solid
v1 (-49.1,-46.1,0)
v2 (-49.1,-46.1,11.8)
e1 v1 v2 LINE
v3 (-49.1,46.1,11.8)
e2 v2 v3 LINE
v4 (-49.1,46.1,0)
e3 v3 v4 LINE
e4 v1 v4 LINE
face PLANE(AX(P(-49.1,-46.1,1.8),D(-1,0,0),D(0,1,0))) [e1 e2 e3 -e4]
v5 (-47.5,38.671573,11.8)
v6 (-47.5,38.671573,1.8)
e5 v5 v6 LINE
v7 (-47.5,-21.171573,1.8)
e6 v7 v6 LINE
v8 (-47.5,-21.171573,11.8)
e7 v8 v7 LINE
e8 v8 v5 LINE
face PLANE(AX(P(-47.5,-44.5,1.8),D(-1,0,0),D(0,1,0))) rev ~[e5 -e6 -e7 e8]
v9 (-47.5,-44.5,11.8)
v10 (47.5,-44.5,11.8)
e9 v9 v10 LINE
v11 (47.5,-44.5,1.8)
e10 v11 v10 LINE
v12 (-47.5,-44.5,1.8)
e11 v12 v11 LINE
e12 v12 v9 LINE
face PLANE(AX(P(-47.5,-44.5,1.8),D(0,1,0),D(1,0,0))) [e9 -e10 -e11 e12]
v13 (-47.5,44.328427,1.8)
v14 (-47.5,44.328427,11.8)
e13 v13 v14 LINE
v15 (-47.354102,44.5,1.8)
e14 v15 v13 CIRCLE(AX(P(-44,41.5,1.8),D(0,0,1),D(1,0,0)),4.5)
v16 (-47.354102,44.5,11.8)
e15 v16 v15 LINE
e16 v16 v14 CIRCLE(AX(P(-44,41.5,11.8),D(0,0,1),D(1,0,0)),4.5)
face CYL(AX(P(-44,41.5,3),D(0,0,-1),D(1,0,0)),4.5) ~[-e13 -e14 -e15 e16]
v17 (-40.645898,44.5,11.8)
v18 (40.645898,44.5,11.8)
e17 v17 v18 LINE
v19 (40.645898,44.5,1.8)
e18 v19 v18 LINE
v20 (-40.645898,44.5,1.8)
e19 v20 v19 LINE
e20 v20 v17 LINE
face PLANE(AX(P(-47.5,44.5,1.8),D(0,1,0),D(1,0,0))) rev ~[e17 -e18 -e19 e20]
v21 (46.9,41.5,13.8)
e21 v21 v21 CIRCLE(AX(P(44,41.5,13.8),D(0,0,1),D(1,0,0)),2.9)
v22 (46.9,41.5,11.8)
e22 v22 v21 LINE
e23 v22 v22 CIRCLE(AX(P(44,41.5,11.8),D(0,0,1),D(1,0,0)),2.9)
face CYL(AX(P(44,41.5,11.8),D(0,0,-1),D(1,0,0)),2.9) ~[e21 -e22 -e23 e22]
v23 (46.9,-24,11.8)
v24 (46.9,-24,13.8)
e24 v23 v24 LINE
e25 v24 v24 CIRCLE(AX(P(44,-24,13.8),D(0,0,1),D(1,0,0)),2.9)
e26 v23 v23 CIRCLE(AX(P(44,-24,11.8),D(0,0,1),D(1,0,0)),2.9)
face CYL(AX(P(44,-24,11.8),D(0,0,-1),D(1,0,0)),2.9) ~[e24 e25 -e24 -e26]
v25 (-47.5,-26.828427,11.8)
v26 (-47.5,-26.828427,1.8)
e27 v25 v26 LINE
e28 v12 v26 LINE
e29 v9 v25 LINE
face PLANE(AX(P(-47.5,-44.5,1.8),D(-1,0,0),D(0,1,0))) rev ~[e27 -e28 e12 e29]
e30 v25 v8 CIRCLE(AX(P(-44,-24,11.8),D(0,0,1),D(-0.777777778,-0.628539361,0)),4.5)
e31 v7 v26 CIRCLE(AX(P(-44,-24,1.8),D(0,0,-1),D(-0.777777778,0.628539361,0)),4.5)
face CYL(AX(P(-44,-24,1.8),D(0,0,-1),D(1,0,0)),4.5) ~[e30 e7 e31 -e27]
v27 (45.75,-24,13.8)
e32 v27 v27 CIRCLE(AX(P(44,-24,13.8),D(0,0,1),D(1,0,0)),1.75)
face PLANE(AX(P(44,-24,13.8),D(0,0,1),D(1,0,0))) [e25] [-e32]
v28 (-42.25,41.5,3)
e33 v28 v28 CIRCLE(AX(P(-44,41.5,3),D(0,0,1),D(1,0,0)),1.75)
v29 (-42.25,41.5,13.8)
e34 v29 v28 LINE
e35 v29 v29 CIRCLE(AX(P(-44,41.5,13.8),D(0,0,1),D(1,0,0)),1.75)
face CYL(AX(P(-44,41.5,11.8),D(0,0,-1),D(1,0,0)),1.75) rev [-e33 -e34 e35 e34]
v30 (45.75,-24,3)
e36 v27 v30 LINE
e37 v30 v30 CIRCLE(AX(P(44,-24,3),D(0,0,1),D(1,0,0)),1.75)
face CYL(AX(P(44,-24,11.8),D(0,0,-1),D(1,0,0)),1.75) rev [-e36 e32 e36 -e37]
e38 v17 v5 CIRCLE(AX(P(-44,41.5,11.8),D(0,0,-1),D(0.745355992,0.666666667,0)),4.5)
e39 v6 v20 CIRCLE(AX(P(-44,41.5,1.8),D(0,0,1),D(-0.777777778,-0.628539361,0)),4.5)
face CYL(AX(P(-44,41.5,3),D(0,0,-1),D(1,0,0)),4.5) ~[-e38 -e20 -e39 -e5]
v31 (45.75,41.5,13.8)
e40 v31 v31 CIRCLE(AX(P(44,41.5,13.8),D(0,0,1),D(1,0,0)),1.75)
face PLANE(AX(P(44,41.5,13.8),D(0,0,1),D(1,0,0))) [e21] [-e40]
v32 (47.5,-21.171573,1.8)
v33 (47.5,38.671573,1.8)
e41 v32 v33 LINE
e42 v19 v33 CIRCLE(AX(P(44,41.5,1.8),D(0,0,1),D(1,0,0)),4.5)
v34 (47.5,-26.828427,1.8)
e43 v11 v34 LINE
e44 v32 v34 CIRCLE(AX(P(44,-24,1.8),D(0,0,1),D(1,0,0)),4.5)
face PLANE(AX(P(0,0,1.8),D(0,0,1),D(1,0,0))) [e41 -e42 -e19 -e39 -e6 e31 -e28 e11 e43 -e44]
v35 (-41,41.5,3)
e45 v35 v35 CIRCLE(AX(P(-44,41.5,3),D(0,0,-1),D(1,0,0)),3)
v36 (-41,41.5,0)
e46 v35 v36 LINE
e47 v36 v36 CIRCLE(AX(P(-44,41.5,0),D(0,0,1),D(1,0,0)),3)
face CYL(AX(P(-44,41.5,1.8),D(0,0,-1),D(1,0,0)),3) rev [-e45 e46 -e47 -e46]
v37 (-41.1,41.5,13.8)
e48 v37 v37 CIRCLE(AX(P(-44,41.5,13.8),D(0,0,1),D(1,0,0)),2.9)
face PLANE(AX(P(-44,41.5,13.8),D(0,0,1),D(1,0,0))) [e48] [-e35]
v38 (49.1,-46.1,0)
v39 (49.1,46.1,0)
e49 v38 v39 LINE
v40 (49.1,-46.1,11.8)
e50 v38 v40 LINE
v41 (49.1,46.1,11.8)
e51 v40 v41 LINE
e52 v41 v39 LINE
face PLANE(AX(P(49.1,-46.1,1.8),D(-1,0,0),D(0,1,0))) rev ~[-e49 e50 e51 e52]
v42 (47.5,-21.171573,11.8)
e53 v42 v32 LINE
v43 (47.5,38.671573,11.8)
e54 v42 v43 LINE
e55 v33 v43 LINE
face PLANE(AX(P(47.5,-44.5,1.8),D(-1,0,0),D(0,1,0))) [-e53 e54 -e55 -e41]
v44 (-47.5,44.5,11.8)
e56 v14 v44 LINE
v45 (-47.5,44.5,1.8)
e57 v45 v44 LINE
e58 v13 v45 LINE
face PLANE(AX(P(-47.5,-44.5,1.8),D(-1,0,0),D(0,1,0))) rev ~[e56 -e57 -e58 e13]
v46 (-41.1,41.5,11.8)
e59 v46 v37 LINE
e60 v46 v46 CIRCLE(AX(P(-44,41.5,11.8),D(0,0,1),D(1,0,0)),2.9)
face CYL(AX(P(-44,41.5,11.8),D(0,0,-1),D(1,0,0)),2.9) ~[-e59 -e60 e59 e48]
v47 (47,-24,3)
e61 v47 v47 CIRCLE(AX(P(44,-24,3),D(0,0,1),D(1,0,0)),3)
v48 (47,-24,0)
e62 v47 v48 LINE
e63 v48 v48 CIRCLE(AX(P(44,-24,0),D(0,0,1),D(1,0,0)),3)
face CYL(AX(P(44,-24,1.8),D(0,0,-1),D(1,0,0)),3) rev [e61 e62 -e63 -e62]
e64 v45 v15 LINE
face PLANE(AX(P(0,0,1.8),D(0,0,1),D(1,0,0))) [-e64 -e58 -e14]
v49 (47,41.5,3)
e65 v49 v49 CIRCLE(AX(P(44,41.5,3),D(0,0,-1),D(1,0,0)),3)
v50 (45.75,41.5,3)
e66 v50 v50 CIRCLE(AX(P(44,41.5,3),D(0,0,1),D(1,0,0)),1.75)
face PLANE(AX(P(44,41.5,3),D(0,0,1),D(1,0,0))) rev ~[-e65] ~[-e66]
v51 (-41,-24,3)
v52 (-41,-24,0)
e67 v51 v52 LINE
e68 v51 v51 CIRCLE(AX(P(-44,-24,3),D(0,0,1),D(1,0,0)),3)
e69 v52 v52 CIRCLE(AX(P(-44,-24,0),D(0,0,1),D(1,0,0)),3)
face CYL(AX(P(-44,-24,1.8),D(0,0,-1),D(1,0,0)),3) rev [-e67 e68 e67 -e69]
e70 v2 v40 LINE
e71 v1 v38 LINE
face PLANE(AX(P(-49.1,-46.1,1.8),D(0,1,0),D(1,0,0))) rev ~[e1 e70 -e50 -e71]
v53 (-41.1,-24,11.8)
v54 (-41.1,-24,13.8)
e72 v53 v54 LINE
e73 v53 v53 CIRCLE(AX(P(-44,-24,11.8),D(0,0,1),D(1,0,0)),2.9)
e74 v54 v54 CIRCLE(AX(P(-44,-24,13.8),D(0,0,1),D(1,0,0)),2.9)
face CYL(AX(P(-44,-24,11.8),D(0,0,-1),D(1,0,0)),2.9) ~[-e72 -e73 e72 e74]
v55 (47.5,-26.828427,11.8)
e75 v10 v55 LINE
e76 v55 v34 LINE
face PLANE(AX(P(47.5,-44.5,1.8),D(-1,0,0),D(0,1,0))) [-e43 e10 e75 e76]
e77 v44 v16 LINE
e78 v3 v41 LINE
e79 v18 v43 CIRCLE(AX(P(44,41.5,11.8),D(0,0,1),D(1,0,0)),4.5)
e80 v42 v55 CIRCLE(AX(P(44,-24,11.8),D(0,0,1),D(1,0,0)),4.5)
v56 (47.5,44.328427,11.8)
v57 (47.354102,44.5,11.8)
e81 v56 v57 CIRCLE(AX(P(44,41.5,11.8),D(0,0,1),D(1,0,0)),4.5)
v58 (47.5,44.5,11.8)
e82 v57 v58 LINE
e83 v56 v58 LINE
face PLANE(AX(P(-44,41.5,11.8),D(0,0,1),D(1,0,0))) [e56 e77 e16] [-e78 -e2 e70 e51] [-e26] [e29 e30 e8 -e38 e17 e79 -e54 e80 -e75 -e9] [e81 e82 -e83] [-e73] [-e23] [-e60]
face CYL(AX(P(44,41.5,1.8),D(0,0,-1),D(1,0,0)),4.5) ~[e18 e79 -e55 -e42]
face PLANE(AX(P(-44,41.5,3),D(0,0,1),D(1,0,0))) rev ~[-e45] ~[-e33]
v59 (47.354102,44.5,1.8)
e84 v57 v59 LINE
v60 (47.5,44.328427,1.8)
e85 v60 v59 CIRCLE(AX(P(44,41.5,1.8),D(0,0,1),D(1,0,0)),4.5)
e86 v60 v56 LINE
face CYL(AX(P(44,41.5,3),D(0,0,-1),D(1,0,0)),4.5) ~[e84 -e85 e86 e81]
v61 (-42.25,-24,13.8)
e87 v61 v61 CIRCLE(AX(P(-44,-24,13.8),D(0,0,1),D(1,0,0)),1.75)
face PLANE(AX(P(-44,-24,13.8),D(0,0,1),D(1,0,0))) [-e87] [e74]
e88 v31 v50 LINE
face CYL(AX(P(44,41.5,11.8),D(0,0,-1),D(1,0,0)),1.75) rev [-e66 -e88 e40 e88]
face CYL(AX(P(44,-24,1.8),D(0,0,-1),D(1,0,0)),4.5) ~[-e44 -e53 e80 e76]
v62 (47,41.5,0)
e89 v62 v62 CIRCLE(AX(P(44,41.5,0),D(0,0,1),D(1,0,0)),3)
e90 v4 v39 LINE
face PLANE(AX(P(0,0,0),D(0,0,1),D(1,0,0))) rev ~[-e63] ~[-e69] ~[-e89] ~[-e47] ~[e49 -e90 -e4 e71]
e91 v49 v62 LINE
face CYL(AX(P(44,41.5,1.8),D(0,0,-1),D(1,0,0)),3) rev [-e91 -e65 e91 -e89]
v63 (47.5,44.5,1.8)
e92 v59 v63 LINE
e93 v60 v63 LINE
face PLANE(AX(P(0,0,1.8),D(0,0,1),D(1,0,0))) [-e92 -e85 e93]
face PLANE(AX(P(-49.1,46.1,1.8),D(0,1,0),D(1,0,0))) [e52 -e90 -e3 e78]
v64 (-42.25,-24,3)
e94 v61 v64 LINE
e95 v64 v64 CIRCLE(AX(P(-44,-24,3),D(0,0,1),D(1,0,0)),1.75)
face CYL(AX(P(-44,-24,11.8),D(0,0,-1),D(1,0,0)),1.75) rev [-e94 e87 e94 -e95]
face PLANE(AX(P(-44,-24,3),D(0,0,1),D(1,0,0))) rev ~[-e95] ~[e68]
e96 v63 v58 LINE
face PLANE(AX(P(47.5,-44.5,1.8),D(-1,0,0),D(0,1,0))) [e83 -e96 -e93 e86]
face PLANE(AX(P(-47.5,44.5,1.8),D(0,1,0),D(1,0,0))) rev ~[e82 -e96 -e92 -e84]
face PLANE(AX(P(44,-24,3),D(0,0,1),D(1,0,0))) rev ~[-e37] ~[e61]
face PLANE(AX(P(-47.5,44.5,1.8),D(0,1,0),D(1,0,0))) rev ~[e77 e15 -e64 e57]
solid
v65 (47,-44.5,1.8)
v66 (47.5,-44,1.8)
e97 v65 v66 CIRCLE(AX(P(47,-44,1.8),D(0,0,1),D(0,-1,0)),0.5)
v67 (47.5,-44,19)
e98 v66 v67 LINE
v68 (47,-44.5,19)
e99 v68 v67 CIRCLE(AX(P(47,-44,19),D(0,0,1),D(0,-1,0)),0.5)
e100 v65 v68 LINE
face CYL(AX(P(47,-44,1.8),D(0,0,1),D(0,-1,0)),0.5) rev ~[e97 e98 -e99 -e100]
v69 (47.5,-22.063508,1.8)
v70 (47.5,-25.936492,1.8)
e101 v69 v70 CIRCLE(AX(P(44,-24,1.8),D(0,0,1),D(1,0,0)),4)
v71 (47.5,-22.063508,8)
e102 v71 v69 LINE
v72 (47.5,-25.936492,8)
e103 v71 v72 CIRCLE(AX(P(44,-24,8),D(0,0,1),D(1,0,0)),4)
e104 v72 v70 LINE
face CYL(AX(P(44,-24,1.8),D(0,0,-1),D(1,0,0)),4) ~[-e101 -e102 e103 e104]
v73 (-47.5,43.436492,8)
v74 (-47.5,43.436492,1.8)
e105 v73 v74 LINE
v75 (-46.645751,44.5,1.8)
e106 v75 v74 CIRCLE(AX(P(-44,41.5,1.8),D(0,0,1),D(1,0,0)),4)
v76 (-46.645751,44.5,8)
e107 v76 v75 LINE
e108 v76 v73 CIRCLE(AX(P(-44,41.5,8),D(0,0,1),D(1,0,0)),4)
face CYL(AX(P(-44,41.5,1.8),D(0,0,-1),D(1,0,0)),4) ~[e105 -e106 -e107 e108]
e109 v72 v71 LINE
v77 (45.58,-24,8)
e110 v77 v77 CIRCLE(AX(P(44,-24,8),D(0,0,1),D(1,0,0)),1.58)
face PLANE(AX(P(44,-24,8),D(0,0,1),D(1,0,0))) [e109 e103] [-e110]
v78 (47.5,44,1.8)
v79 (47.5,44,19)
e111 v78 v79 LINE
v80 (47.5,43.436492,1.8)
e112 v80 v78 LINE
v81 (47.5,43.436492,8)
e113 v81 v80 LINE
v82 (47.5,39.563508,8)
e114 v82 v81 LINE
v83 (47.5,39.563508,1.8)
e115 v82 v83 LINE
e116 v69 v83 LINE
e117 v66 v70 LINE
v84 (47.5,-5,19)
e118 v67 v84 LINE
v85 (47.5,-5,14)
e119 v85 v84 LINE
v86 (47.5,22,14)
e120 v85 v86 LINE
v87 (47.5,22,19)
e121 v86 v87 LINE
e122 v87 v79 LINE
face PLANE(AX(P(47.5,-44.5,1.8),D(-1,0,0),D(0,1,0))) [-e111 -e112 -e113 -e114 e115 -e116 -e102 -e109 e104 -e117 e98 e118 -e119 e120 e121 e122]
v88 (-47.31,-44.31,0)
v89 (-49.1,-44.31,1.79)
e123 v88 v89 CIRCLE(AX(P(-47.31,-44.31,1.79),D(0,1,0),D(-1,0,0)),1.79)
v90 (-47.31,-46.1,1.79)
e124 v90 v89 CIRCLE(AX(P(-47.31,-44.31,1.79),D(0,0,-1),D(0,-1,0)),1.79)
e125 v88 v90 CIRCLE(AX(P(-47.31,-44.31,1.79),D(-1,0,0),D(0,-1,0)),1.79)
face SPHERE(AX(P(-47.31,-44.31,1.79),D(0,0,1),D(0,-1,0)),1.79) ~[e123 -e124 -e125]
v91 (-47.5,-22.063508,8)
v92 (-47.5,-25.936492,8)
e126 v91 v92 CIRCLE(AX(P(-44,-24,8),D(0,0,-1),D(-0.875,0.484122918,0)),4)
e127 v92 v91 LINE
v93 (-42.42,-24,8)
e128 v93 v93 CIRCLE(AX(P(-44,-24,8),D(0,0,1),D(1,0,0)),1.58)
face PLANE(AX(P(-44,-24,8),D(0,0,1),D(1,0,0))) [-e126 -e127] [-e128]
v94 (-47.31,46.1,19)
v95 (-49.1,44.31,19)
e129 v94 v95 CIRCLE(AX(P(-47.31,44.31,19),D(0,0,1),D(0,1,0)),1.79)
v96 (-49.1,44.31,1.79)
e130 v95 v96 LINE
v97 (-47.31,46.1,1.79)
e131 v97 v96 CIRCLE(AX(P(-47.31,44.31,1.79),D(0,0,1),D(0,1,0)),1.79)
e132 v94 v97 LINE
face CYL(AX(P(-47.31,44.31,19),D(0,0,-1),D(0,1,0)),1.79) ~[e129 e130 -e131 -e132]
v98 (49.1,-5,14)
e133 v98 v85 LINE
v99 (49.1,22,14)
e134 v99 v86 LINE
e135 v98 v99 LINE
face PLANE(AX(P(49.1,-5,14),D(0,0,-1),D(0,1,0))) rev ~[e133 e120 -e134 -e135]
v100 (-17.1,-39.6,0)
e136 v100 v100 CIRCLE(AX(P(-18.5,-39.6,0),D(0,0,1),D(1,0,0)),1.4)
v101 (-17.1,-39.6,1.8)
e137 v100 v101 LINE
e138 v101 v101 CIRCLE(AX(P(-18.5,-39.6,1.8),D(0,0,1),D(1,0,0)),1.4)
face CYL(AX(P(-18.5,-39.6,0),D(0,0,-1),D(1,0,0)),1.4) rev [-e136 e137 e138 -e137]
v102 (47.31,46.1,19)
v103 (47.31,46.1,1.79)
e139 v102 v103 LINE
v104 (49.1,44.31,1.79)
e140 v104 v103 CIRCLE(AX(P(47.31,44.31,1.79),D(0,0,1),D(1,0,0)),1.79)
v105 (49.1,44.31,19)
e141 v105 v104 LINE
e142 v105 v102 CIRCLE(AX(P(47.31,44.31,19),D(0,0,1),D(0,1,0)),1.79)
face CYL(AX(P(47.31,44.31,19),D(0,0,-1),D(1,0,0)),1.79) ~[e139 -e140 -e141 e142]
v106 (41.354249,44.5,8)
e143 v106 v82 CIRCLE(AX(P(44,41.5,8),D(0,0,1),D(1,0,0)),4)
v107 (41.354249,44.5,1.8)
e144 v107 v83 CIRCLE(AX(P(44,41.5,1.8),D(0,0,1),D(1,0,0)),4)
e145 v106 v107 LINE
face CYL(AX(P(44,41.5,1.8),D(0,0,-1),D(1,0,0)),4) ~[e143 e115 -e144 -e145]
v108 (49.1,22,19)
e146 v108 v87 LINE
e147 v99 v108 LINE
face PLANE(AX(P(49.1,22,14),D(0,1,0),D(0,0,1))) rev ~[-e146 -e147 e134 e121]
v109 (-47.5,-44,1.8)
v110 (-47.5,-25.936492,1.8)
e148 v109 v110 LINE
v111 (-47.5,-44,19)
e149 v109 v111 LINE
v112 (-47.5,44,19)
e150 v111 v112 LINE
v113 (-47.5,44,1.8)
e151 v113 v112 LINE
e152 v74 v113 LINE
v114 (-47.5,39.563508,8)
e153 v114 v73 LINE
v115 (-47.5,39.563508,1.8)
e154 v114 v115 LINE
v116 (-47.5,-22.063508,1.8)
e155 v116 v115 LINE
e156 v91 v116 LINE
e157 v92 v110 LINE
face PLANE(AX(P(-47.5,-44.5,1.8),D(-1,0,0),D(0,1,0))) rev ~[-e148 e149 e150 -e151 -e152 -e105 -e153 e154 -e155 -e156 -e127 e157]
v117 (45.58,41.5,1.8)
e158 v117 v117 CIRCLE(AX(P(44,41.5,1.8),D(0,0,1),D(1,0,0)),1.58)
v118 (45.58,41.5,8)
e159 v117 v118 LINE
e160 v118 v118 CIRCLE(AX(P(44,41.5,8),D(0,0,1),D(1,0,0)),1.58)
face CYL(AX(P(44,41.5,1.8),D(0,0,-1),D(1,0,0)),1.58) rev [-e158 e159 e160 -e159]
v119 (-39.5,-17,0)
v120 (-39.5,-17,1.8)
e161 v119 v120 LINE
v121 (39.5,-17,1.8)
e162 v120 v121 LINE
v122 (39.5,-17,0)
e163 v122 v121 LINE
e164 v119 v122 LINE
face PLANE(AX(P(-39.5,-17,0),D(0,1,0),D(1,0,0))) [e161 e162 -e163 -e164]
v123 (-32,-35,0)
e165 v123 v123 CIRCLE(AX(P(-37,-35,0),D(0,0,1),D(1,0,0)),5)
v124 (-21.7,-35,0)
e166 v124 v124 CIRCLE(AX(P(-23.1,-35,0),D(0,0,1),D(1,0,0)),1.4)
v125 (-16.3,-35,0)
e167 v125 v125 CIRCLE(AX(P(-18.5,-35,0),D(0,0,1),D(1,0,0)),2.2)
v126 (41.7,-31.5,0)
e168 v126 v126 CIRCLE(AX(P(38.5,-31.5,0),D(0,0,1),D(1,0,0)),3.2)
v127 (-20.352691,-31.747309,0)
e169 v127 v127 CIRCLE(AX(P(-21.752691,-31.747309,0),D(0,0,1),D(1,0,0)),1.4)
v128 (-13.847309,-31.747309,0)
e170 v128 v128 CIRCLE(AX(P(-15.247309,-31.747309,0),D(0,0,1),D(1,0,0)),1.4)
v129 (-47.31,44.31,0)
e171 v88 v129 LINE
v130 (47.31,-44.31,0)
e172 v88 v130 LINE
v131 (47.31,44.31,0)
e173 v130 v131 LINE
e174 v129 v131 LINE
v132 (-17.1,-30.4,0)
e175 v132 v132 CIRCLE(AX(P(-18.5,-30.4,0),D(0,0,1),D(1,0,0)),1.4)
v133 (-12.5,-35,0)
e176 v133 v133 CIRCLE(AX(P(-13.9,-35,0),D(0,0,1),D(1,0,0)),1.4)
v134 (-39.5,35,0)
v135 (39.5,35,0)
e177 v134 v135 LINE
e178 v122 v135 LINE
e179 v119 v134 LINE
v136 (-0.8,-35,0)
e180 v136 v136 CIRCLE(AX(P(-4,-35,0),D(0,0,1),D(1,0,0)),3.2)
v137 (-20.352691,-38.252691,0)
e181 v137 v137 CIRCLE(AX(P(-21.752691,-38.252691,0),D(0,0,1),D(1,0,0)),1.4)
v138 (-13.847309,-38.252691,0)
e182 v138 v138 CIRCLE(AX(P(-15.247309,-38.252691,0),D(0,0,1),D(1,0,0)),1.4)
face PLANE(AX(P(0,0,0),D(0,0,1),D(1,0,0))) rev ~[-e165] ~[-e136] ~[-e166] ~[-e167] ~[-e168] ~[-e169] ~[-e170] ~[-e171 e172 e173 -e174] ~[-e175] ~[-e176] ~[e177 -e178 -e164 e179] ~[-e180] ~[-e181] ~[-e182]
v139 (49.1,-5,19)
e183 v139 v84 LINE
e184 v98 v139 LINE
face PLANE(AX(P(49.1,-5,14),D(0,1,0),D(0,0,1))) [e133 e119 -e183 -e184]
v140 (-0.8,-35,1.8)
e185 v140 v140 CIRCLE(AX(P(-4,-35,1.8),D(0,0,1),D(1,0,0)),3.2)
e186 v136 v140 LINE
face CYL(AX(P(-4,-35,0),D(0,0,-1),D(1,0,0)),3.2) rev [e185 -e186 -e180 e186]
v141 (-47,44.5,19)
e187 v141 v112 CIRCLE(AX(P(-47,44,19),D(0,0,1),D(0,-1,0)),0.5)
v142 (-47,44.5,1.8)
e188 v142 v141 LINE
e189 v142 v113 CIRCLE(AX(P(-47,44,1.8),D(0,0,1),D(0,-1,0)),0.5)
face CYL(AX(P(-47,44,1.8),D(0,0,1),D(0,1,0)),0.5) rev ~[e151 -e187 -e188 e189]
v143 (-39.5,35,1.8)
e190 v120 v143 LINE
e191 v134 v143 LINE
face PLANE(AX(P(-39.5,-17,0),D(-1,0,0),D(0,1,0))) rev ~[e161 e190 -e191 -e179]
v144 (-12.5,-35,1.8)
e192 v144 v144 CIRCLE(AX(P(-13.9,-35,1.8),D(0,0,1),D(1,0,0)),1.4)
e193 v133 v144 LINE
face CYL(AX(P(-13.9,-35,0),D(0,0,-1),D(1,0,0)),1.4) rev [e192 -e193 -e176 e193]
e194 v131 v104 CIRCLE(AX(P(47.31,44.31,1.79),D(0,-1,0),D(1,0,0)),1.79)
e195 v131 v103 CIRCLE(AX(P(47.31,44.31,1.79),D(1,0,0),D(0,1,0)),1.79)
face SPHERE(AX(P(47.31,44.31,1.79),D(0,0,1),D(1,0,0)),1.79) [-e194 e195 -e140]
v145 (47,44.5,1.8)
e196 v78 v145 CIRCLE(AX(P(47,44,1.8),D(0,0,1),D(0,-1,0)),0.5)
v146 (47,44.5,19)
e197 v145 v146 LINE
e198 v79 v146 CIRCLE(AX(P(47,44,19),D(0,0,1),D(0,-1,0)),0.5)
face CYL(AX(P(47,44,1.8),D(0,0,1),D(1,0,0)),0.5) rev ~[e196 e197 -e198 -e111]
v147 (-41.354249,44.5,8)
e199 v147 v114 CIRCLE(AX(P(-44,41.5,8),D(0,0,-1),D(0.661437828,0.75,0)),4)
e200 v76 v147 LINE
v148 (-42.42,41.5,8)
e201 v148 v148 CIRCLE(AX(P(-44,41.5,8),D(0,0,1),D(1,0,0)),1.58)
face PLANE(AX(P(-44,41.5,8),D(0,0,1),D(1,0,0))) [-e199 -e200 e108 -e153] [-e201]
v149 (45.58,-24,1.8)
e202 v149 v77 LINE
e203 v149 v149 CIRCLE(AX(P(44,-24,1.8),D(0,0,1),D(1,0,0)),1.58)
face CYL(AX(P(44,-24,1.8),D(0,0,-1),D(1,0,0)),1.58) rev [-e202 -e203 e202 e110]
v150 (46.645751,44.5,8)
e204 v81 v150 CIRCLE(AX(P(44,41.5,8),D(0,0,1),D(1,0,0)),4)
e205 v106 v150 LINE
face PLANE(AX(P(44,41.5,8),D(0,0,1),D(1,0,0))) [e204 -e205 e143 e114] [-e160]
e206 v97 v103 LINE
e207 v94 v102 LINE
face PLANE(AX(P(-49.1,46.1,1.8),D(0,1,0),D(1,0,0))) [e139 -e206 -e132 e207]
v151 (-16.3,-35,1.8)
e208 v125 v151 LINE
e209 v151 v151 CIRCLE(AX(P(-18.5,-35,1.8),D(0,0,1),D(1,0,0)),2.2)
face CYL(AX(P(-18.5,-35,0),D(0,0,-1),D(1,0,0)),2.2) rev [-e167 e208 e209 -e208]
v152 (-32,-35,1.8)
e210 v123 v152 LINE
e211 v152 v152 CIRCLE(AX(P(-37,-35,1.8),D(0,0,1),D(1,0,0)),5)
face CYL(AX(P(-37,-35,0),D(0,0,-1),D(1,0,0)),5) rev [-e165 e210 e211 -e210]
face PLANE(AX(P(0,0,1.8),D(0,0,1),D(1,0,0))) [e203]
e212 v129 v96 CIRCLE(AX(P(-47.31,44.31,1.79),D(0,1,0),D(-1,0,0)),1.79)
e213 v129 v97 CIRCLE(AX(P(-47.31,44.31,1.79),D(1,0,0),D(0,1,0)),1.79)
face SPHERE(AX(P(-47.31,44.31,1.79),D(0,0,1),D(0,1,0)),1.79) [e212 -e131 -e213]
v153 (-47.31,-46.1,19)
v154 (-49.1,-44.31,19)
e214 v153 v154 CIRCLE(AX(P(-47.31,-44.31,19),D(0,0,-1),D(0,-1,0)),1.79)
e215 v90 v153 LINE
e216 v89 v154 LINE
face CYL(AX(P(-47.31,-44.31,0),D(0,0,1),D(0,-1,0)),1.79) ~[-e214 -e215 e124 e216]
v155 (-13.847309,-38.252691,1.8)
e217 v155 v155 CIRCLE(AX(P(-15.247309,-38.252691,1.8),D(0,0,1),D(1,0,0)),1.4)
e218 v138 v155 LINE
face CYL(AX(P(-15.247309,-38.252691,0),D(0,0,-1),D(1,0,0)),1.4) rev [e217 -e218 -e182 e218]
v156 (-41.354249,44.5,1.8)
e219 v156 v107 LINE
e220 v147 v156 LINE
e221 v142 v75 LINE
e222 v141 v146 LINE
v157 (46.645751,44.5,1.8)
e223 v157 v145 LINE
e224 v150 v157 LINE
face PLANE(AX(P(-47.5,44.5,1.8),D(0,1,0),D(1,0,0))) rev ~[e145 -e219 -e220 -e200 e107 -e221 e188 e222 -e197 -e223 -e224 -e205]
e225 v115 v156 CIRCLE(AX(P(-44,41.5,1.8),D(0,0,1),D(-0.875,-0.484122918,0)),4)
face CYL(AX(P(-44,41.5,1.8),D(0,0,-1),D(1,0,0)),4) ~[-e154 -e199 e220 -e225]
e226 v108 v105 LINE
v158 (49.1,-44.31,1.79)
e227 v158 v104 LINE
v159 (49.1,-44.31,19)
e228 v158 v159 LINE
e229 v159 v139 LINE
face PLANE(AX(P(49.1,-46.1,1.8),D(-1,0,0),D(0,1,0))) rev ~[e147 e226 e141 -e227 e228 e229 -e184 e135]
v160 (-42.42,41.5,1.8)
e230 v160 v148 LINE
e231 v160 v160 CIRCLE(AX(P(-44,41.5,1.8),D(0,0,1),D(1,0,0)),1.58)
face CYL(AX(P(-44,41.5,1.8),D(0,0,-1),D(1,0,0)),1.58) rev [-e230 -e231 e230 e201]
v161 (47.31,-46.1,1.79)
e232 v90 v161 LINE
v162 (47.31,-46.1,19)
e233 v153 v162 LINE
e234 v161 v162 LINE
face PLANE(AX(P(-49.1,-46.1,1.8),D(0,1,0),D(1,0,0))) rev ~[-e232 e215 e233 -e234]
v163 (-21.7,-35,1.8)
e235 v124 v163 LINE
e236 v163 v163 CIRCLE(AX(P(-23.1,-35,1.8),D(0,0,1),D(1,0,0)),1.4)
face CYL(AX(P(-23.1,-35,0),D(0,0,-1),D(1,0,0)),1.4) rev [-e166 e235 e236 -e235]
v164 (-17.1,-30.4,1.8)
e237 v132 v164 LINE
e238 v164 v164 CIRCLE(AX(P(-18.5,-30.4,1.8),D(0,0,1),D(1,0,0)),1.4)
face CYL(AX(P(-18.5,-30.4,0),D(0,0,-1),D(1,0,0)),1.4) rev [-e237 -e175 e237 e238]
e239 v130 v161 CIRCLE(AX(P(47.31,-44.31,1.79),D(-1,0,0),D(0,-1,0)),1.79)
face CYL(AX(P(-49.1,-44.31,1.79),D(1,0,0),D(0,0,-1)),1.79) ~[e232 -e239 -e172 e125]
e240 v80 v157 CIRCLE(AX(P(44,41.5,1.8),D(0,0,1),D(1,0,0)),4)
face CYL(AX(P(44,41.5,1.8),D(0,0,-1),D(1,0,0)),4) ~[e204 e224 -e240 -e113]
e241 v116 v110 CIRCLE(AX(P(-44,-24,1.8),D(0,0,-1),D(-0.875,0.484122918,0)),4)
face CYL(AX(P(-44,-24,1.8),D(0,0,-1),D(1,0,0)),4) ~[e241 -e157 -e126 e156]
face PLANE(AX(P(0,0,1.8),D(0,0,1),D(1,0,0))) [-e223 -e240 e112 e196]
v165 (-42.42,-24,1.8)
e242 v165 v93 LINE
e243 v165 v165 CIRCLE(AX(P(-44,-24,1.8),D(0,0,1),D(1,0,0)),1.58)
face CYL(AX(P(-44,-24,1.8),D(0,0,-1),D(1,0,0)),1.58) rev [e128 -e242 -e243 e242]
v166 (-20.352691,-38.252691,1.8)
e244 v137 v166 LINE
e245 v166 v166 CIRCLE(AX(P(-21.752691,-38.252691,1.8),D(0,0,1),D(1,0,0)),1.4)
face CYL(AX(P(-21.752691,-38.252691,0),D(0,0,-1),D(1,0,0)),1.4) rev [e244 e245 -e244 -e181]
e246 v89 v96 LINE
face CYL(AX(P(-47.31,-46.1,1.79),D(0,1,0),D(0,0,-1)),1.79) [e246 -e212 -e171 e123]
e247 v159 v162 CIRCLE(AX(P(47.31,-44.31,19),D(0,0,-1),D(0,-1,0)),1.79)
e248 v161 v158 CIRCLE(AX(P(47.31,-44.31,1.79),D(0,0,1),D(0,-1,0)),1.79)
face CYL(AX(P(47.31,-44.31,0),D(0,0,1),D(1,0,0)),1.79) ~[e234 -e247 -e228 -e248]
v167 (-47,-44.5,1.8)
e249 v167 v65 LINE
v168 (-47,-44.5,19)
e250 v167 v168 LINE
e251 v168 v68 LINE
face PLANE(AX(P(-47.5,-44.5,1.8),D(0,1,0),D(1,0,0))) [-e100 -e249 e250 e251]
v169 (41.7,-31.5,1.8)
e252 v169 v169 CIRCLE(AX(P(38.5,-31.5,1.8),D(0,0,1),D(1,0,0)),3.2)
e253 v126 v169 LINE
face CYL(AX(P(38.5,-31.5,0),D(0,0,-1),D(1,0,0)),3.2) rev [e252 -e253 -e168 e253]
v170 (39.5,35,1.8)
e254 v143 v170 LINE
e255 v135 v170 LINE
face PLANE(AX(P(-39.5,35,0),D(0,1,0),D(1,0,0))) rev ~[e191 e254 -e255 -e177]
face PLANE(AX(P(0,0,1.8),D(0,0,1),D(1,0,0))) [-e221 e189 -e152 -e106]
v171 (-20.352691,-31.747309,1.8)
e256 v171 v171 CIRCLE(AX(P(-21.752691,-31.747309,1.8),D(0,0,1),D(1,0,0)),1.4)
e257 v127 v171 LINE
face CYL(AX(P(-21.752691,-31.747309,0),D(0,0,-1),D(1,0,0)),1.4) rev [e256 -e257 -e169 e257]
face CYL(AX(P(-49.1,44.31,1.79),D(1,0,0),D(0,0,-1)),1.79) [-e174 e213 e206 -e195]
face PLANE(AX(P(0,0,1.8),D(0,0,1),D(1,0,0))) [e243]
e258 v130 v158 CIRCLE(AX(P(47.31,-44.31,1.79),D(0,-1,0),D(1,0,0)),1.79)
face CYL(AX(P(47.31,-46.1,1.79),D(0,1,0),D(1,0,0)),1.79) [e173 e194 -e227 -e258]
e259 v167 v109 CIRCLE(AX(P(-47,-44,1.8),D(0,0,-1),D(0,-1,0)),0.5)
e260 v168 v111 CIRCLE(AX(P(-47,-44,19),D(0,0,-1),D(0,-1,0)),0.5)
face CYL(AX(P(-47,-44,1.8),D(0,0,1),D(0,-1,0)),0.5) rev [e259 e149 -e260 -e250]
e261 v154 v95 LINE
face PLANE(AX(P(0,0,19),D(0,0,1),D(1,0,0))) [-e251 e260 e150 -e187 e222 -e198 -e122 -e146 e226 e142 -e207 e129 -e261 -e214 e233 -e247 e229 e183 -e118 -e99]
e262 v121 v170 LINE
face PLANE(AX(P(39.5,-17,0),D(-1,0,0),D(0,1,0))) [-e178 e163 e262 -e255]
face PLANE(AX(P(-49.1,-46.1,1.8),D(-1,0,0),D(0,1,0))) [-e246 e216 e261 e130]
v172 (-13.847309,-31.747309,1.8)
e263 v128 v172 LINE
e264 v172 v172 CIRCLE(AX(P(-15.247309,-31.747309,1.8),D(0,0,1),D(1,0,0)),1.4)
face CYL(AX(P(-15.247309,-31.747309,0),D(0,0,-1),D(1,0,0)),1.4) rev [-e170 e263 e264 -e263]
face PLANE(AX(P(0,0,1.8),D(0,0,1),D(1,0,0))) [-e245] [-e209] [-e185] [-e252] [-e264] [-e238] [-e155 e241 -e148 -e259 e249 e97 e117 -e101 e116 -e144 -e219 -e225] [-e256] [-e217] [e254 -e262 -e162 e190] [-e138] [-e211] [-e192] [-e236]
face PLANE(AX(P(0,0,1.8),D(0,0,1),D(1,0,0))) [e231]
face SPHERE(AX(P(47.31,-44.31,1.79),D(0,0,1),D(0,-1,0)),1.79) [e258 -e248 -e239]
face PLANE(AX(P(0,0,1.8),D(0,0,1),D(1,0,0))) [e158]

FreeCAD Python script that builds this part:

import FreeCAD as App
import Part
import Sketcher

V = App.Vector


def edges_at(feature, points):
    """Names of the edges that pass closest to the given points."""
    edges = feature.Shape.Edges
    near = lambda p: min(range(len(edges)), key=lambda i: edges[i].distToShape(Part.Vertex(*p))[0])
    return sorted({f"Edge{near(p) + 1}" for p in points})

doc = App.newDocument("Part")
body = doc.addObject("PartDesign::Body", "Body")

# Sketch on XY plane
sketch1 = body.newObject("Sketcher::SketchObject", "Sketch")
sketch1.AttachmentSupport = (doc.getObject("XY_Plane"), [""])
sketch1.MapMode = "FlatFace"
sketch1.addGeometry([
    Part.LineSegment(V(-49.1, 46.1, 0), V(-49.1, -46.1, 0)),  # 0
    Part.LineSegment(V(-49.1, -46.1, 0), V(49.1, -46.1, 0)),  # 1
    Part.LineSegment(V(49.1, -46.1, 0), V(49.1, 46.1, 0)),  # 2
    Part.LineSegment(V(49.1, 46.1, 0), V(-49.1, 46.1, 0)),  # 3
    Part.Circle(V(-37, -35, 0), V(0, 0, 1), 5),  # 4
    Part.Circle(V(-21.8, -38.3, 0), V(0, 0, 1), 1.4),  # 5
    Part.Circle(V(-23.1, -35, 0), V(0, 0, 1), 1.4),  # 6
    Part.Circle(V(-21.8, -31.7, 0), V(0, 0, 1), 1.4),  # 7
    Part.Circle(V(-18.5, -39.6, 0), V(0, 0, 1), 1.4),  # 8
    Part.Circle(V(-15.2, -38.3, 0), V(0, 0, 1), 1.4),  # 9
    Part.Circle(V(-18.5, -35, 0), V(0, 0, 1), 2.2),  # 10
    Part.Circle(V(-13.9, -35, 0), V(0, 0, 1), 1.4),  # 11
    Part.Circle(V(-15.2, -31.7, 0), V(0, 0, 1), 1.4),  # 12
    Part.Circle(V(-4, -35, 0), V(0, 0, 1), 3.2),  # 13
    Part.Circle(V(-18.5, -30.4, 0), V(0, 0, 1), 1.4),  # 14
    Part.Circle(V(38.5, -31.5, 0), V(0, 0, 1), 3.2),  # 15
    Part.LineSegment(V(39.5, -17, 0), V(-39.5, -17, 0)),  # 16
    Part.LineSegment(V(-39.5, -17, 0), V(-39.5, 35, 0)),  # 17
    Part.LineSegment(V(-39.5, 35, 0), V(39.5, 35, 0)),  # 18
    Part.LineSegment(V(39.5, 35, 0), V(39.5, -17, 0)),  # 19
], False)
sketch1.addConstraint([
    Sketcher.Constraint("Coincident", 0, 2, 1, 1),
    Sketcher.Constraint("Coincident", 1, 2, 2, 1),
    Sketcher.Constraint("Coincident", 2, 2, 3, 1),
    Sketcher.Constraint("Coincident", 3, 2, 0, 1),
    Sketcher.Constraint("Coincident", 16, 2, 17, 1),
    Sketcher.Constraint("Coincident", 17, 2, 18, 1),
    Sketcher.Constraint("Coincident", 18, 2, 19, 1),
    Sketcher.Constraint("Coincident", 19, 2, 16, 1),
    Sketcher.Constraint("Vertical", 0),
    Sketcher.Constraint("Horizontal", 1),
    Sketcher.Constraint("Vertical", 2),
    Sketcher.Constraint("Horizontal", 3),
    Sketcher.Constraint("Horizontal", 16),
    Sketcher.Constraint("Vertical", 17),
    Sketcher.Constraint("Horizontal", 18),
    Sketcher.Constraint("Vertical", 19),
    Sketcher.Constraint("Equal", 5, 6),
    Sketcher.Constraint("Equal", 6, 7),
    Sketcher.Constraint("Equal", 7, 8),
    Sketcher.Constraint("Equal", 8, 9),
    Sketcher.Constraint("Equal", 9, 11),
    Sketcher.Constraint("Equal", 11, 12),
    Sketcher.Constraint("Equal", 12, 14),
    Sketcher.Constraint("Equal", 13, 15),
    Sketcher.Constraint("Symmetric", 0, 2, 2, 2, -1, 1),
    Sketcher.Constraint("Horizontal", 4, 3, 6, 3),
    Sketcher.Constraint("Horizontal", 5, 3, 9, 3),
    Sketcher.Constraint("Horizontal", 6, 3, 10, 3),
    Sketcher.Constraint("Horizontal", 10, 3, 11, 3),
    Sketcher.Constraint("Horizontal", 7, 3, 12, 3),
    Sketcher.Constraint("Horizontal", 11, 3, 13, 3),
    Sketcher.Constraint("Vertical", 5, 3, 7, 3),
    Sketcher.Constraint("Vertical", 8, 3, 10, 3),
    Sketcher.Constraint("Vertical", 9, 3, 12, 3),
    Sketcher.Constraint("Vertical", 10, 3, 14, 3),
    Sketcher.Constraint("Diameter", 4, 10.0),
    Sketcher.Constraint("Diameter", 5, 2.8),
    Sketcher.Constraint("Diameter", 10, 4.4),
    Sketcher.Constraint("Diameter", 13, 6.4),
    Sketcher.Constraint("DistanceX", 16, 2, 16, 1, 79.0),
    Sketcher.Constraint("DistanceY", 17, 1, 17, 2, 52.0),
    Sketcher.Constraint("DistanceX", 1, 1, 1, 2, 98.2),
    Sketcher.Constraint("DistanceY", 0, 2, 0, 1, 92.2),
    Sketcher.Constraint("DistanceX", 4, 3, -1, 1, 37.0),
    Sketcher.Constraint("DistanceY", 4, 3, -1, 1, 35.0),
    Sketcher.Constraint("DistanceX", 13, 3, -1, 1, 4.0),
    Sketcher.Constraint("DistanceY", 16, 2, -1, 1, 17.0),
    Sketcher.Constraint("DistanceX", 14, 3, 15, 3, 57.0),
    Sketcher.Constraint("DistanceX", 0, 2, 6, 3, 26.0),
    Sketcher.Constraint("DistanceX", 11, 3, 1, 2, 63.0),
    Sketcher.Constraint("DistanceX", 16, 2, 14, 3, 21.0),
    Sketcher.Constraint("DistanceX", 8, 3, -1, 1, 18.5),
    Sketcher.Constraint("DistanceY", 8, 3, -1, 1, 39.6),
    Sketcher.Constraint("DistanceY", 14, 3, -1, 1, 30.4),
    Sketcher.Constraint("DistanceY", 15, 3, -1, 1, 31.5),
    Sketcher.Constraint("DistanceX", 5, 3, -1, 1, 21.752691),
    Sketcher.Constraint("DistanceY", 5, 3, -1, 1, 38.252691),
    Sketcher.Constraint("DistanceY", 7, 3, -1, 1, 31.747309),
    Sketcher.Constraint("DistanceX", 9, 3, -1, 1, 15.247309),
])
pad1 = body.newObject("PartDesign::Pad", "Pad")
pad1.Profile = sketch1
pad1.Length = 1.8

# Sketch on XY plane
sketch2 = body.newObject("Sketcher::SketchObject", "Sketch001")
sketch2.AttachmentSupport = (doc.getObject("XY_Plane"), [""])
sketch2.MapMode = "FlatFace"
sketch2.AttachmentOffset = App.Placement(V(0, 0, 1.8), App.Rotation())
sketch2.addGeometry([
    Part.LineSegment(V(-49, 46, 0), V(-49, -46, 0)),  # 0
    Part.LineSegment(V(-49, -46, 0), V(49, -46, 0)),  # 1
    Part.LineSegment(V(49, -46, 0), V(49, 46, 0)),  # 2
    Part.LineSegment(V(49, 46, 0), V(-49, 46, 0)),  # 3
    Part.LineSegment(V(48, -44, 0), V(-48, -44, 0)),  # 4
    Part.LineSegment(V(-48, -44, 0), V(-48, 44, 0)),  # 5
    Part.LineSegment(V(-48, 44, 0), V(48, 44, 0)),  # 6
    Part.LineSegment(V(48, 44, 0), V(48, -44, 0)),  # 7
], False)
sketch2.addConstraint([
    Sketcher.Constraint("Coincident", 0, 2, 1, 1),
    Sketcher.Constraint("Coincident", 1, 2, 2, 1),
    Sketcher.Constraint("Coincident", 2, 2, 3, 1),
    Sketcher.Constraint("Coincident", 3, 2, 0, 1),
    Sketcher.Constraint("Coincident", 4, 2, 5, 1),
    Sketcher.Constraint("Coincident", 5, 2, 6, 1),
    Sketcher.Constraint("Coincident", 6, 2, 7, 1),
    Sketcher.Constraint("Coincident", 7, 2, 4, 1),
    Sketcher.Constraint("Vertical", 0),
    Sketcher.Constraint("Horizontal", 1),
    Sketcher.Constraint("Vertical", 2),
    Sketcher.Constraint("Horizontal", 3),
    Sketcher.Constraint("Horizontal", 4),
    Sketcher.Constraint("Vertical", 5),
    Sketcher.Constraint("Horizontal", 6),
    Sketcher.Constraint("Vertical", 7),
    Sketcher.Constraint("Symmetric", 0, 2, 2, 2, -1, 1),
    Sketcher.Constraint("Symmetric", 4, 2, 6, 2, -1, 1),
    Sketcher.Constraint("DistanceX", 4, 2, 4, 1, 95.0),
    Sketcher.Constraint("DistanceY", 5, 1, 5, 2, 89.0),
    Sketcher.Constraint("DistanceX", 1, 1, 1, 2, 98.2),
    Sketcher.Constraint("DistanceY", 0, 2, 0, 1, 92.2),
])
pad2 = body.newObject("PartDesign::Pad", "Pad001")
pad2.Profile = sketch2
pad2.Length = 17.2

# Sketch on XY plane
sketch3 = body.newObject("Sketcher::SketchObject", "Sketch002")
sketch3.AttachmentSupport = (doc.getObject("XY_Plane"), [""])
sketch3.MapMode = "FlatFace"
sketch3.AttachmentOffset = App.Placement(V(0, 0, 1.8), App.Rotation())
sketch3.addGeometry([
    Part.Circle(V(-44, 41.5, 0), V(0, 0, 1), 4),  # 0
    Part.Circle(V(-44, 41.5, 0), V(0, 0, 1), 1.6),  # 1
    Part.Circle(V(44, 41.5, 0), V(0, 0, 1), 4),  # 2
    Part.Circle(V(44, 41.5, 0), V(0, 0, 1), 1.6),  # 3
    Part.Circle(V(44, -24, 0), V(0, 0, 1), 4),  # 4
    Part.Circle(V(44, -24, 0), V(0, 0, 1), 1.6),  # 5
    Part.Circle(V(-44, -24, 0), V(0, 0, 1), 4),  # 6
    Part.Circle(V(-44, -24, 0), V(0, 0, 1), 1.6),  # 7
], False)
sketch3.addConstraint([
    Sketcher.Constraint("Coincident", 1, 3, 0, 3),
    Sketcher.Constraint("Coincident", 3, 3, 2, 3),
    Sketcher.Constraint("Coincident", 5, 3, 4, 3),
    Sketcher.Constraint("Coincident", 7, 3, 6, 3),
    Sketcher.Constraint("Equal", 0, 2),
    Sketcher.Constraint("Equal", 1, 3),
    Sketcher.Constraint("Equal", 2, 4),
    Sketcher.Constraint("Equal", 3, 5),
    Sketcher.Constraint("Equal", 4, 6),
    Sketcher.Constraint("Equal", 5, 7),
    Sketcher.Constraint("Symmetric", 0, 3, 2, 3, -2),
    Sketcher.Constraint("Symmetric", 4, 3, 6, 3, -2),
    Sketcher.Constraint("Vertical", 3, 3, 4, 3),
    Sketcher.Constraint("Diameter", 0, 8.0),
    Sketcher.Constraint("Diameter", 1, 3.16),
    Sketcher.Constraint("DistanceX", 0, 3, -1, 1, 44.0),
    Sketcher.Constraint("DistanceY", 4, 3, -1, 1, 24.0),
    Sketcher.Constraint("DistanceY", -1, 1, 0, 3, 41.5),
])
pad3 = body.newObject("PartDesign::Pad", "Pad002")
pad3.Profile = sketch3
pad3.Length = 6.2
doc.recompute()

fillet = body.newObject("PartDesign::Fillet", "Fillet")
fillet.Base = (pad3, edges_at(pad3, [
    (-49.1, 46.1, 9.5),
    (-49.1, 46.1, 9.5),
    (-49.1, -46.1, 9.5),
    (-49.1, -46.1, 9.5),
    (49.1, 46.1, 9.5),
    (49.1, 46.1, 9.5),
    (49.1, -46.1, 9.5),
    (49.1, -46.1, 9.5),
    (0, -46.1, 0),
    (49.1, 0, 0),
    (0, 46.1, 0),
    (-49.1, 0, 0),
]))
fillet.Radius = 1.79
doc.recompute()

fillet2 = body.newObject("PartDesign::Fillet", "Fillet001")
fillet2.Base = (fillet, edges_at(fillet, [
    (-47.5, 44.5, 10.4),
    (-47.5, -44.5, 10.4),
    (47.5, -44.5, 10.4),
    (47.5, 44.5, 10.4),
]))
fillet2.Radius = 0.5

# Sketch on YZ plane
sketch4 = body.newObject("Sketcher::SketchObject", "Sketch003")
sketch4.AttachmentSupport = (doc.getObject("YZ_Plane"), [""])
sketch4.MapMode = "FlatFace"
sketch4.AttachmentOffset = App.Placement(V(0, 0, 49.1), App.Rotation())
sketch4.addGeometry([
    Part.LineSegment(V(-5, 19, 0), V(-5, 14, 0)),
    Part.LineSegment(V(-5, 14, 0), V(22, 14, 0)),
    Part.LineSegment(V(22, 14, 0), V(22, 19, 0)),
    Part.LineSegment(V(22, 19, 0), V(-5, 19, 0)),
], False)
sketch4.addConstraint([
    Sketcher.Constraint("Coincident", 0, 2, 1, 1),
    Sketcher.Constraint("Coincident", 1, 2, 2, 1),
    Sketcher.Constraint("Coincident", 2, 2, 3, 1),
    Sketcher.Constraint("Coincident", 3, 2, 0, 1),
    Sketcher.Constraint("Vertical", 0),
    Sketcher.Constraint("Horizontal", 1),
    Sketcher.Constraint("Vertical", 2),
    Sketcher.Constraint("Horizontal", 3),
    Sketcher.Constraint("DistanceX", 1, 1, 1, 2, 27.0),
    Sketcher.Constraint("DistanceY", 0, 2, 0, 1, 5.0),
    Sketcher.Constraint("DistanceX", 0, 2, -1, 1, 5.0),
    Sketcher.Constraint("DistanceY", -1, 1, 0, 2, 14.0),
])
pocket1 = body.newObject("PartDesign::Pocket", "Pocket")
pocket1.Profile = sketch4
pocket1.Length = 1.6
body2 = doc.addObject("PartDesign::Body", "Body001")

# Sketch on XY plane
sketch5 = body2.newObject("Sketcher::SketchObject", "Sketch004")
sketch5.AttachmentSupport = (doc.getObject("XY_Plane001"), [""])
sketch5.MapMode = "FlatFace"
sketch5.addGeometry([
    Part.LineSegment(V(-49.1, 46.1, 0), V(-49.1, -46.1, 0)),  # 0
    Part.LineSegment(V(-49.1, -46.1, 0), V(49.1, -46.1, 0)),  # 1
    Part.LineSegment(V(49.1, -46.1, 0), V(49.1, 46.1, 0)),  # 2
    Part.LineSegment(V(49.1, 46.1, 0), V(-49.1, 46.1, 0)),  # 3
    Part.Circle(V(-44, -24, 0), V(0, 0, 1), 3),  # 4
    Part.Circle(V(44, -24, 0), V(0, 0, 1), 3),  # 5
    Part.Circle(V(-44, 41.5, 0), V(0, 0, 1), 3),  # 6
    Part.Circle(V(44, 41.5, 0), V(0, 0, 1), 3),  # 7
], False)
sketch5.addConstraint([
    Sketcher.Constraint("Coincident", 0, 2, 1, 1),
    Sketcher.Constraint("Coincident", 1, 2, 2, 1),
    Sketcher.Constraint("Coincident", 2, 2, 3, 1),
    Sketcher.Constraint("Coincident", 3, 2, 0, 1),
    Sketcher.Constraint("Vertical", 0),
    Sketcher.Constraint("Horizontal", 1),
    Sketcher.Constraint("Vertical", 2),
    Sketcher.Constraint("Horizontal", 3),
    Sketcher.Constraint("Equal", 4, 5),
    Sketcher.Constraint("Equal", 5, 6),
    Sketcher.Constraint("Equal", 6, 7),
    Sketcher.Constraint("Symmetric", 0, 2, 2, 2, -1, 1),
    Sketcher.Constraint("Symmetric", 4, 3, 5, 3, -2),
    Sketcher.Constraint("Symmetric", 6, 3, 7, 3, -2),
    Sketcher.Constraint("Vertical", 4, 3, 6, 3),
    Sketcher.Constraint("Diameter", 4, 6.0),
    Sketcher.Constraint("DistanceX", 1, 1, 1, 2, 98.2),
    Sketcher.Constraint("DistanceY", 0, 2, 0, 1, 92.2),
    Sketcher.Constraint("DistanceX", 4, 3, -1, 1, 44.0),
    Sketcher.Constraint("DistanceY", 4, 3, -1, 1, 24.0),
    Sketcher.Constraint("DistanceY", -1, 1, 6, 3, 41.5),
])
pad4 = body2.newObject("PartDesign::Pad", "Pad003")
pad4.Profile = sketch5
pad4.Length = 1.8

# Sketch on XY plane
sketch6 = body2.newObject("Sketcher::SketchObject", "Sketch005")
sketch6.AttachmentSupport = (doc.getObject("XY_Plane001"), [""])
sketch6.MapMode = "FlatFace"
sketch6.AttachmentOffset = App.Placement(V(0, 0, 1.8), App.Rotation())
sketch6.addGeometry([
    Part.LineSegment(V(-49, 46, 0), V(-49, -46, 0)),  # 0
    Part.LineSegment(V(-49, -46, 0), V(49, -46, 0)),  # 1
    Part.LineSegment(V(49, -46, 0), V(49, 46, 0)),  # 2
    Part.LineSegment(V(49, 46, 0), V(-49, 46, 0)),  # 3
    Part.LineSegment(V(48, -44, 0), V(-48, -44, 0)),  # 4
    Part.LineSegment(V(-48, -44, 0), V(-48, 44, 0)),  # 5
    Part.LineSegment(V(-48, 44, 0), V(48, 44, 0)),  # 6
    Part.LineSegment(V(48, 44, 0), V(48, -44, 0)),  # 7
], False)
sketch6.addConstraint([
    Sketcher.Constraint("Coincident", 0, 2, 1, 1),
    Sketcher.Constraint("Coincident", 1, 2, 2, 1),
    Sketcher.Constraint("Coincident", 2, 2, 3, 1),
    Sketcher.Constraint("Coincident", 3, 2, 0, 1),
    Sketcher.Constraint("Coincident", 4, 2, 5, 1),
    Sketcher.Constraint("Coincident", 5, 2, 6, 1),
    Sketcher.Constraint("Coincident", 6, 2, 7, 1),
    Sketcher.Constraint("Coincident", 7, 2, 4, 1),
    Sketcher.Constraint("Vertical", 0),
    Sketcher.Constraint("Horizontal", 1),
    Sketcher.Constraint("Vertical", 2),
    Sketcher.Constraint("Horizontal", 3),
    Sketcher.Constraint("Horizontal", 4),
    Sketcher.Constraint("Vertical", 5),
    Sketcher.Constraint("Horizontal", 6),
    Sketcher.Constraint("Vertical", 7),
    Sketcher.Constraint("Symmetric", 0, 2, 2, 2, -1, 1),
    Sketcher.Constraint("Symmetric", 4, 2, 6, 2, -1, 1),
    Sketcher.Constraint("DistanceX", 4, 2, 4, 1, 95.0),
    Sketcher.Constraint("DistanceY", 5, 1, 5, 2, 89.0),
    Sketcher.Constraint("DistanceX", 1, 1, 1, 2, 98.2),
    Sketcher.Constraint("DistanceY", 0, 2, 0, 1, 92.2),
])
pad5 = body2.newObject("PartDesign::Pad", "Pad004")
pad5.Profile = sketch6
pad5.Length = 10

# Sketch on XY plane
sketch7 = body2.newObject("Sketcher::SketchObject", "Sketch006")
sketch7.AttachmentSupport = (doc.getObject("XY_Plane001"), [""])
sketch7.MapMode = "FlatFace"
sketch7.AttachmentOffset = App.Placement(V(0, 0, 1.8), App.Rotation())
sketch7.addGeometry([
    Part.Circle(V(-44, 41.5, 0), V(0, 0, 1), 4.5),  # 0
    Part.Circle(V(-44, 41.5, 0), V(0, 0, 1), 3),  # 1
    Part.Circle(V(44, 41.5, 0), V(0, 0, 1), 4.5),  # 2
    Part.Circle(V(44, 41.5, 0), V(0, 0, 1), 3),  # 3
    Part.Circle(V(44, -24, 0), V(0, 0, 1), 4.5),  # 4
    Part.Circle(V(44, -24, 0), V(0, 0, 1), 3),  # 5
    Part.Circle(V(-44, -24, 0), V(0, 0, 1), 4.5),  # 6
    Part.Circle(V(-44, -24, 0), V(0, 0, 1), 3),  # 7
], False)
sketch7.addConstraint([
    Sketcher.Constraint("Coincident", 1, 3, 0, 3),
    Sketcher.Constraint("Coincident", 3, 3, 2, 3),
    Sketcher.Constraint("Coincident", 5, 3, 4, 3),
    Sketcher.Constraint("Coincident", 7, 3, 6, 3),
    Sketcher.Constraint("Equal", 0, 2),
    Sketcher.Constraint("Equal", 1, 3),
    Sketcher.Constraint("Equal", 2, 4),
    Sketcher.Constraint("Equal", 3, 5),
    Sketcher.Constraint("Equal", 4, 6),
    Sketcher.Constraint("Equal", 5, 7),
    Sketcher.Constraint("Symmetric", 0, 3, 2, 3, -2),
    Sketcher.Constraint("Symmetric", 4, 3, 6, 3, -2),
    Sketcher.Constraint("Vertical", 3, 3, 4, 3),
    Sketcher.Constraint("Diameter", 0, 9.0),
    Sketcher.Constraint("Diameter", 1, 6.0),
    Sketcher.Constraint("DistanceX", 0, 3, -1, 1, 44.0),
    Sketcher.Constraint("DistanceY", 4, 3, -1, 1, 24.0),
    Sketcher.Constraint("DistanceY", -1, 1, 0, 3, 41.5),
])
pad6 = body2.newObject("PartDesign::Pad", "Pad005")
pad6.Profile = sketch7
pad6.Length = 1.2

# Sketch on XY plane
sketch8 = body2.newObject("Sketcher::SketchObject", "Sketch007")
sketch8.AttachmentSupport = (doc.getObject("XY_Plane001"), [""])
sketch8.MapMode = "FlatFace"
sketch8.AttachmentOffset = App.Placement(V(0, 0, 3), App.Rotation())
sketch8.addGeometry([
    Part.Circle(V(-44, 41.5, 0), V(0, 0, 1), 4.5),  # 0
    Part.Circle(V(-44, 41.5, 0), V(0, 0, 1), 1.8),  # 1
    Part.Circle(V(44, 41.5, 0), V(0, 0, 1), 4.5),  # 2
    Part.Circle(V(44, 41.5, 0), V(0, 0, 1), 1.8),  # 3
    Part.Circle(V(44, -24, 0), V(0, 0, 1), 4.5),  # 4
    Part.Circle(V(44, -24, 0), V(0, 0, 1), 1.8),  # 5
    Part.Circle(V(-44, -24, 0), V(0, 0, 1), 4.5),  # 6
    Part.Circle(V(-44, -24, 0), V(0, 0, 1), 1.8),  # 7
], False)
sketch8.addConstraint([
    Sketcher.Constraint("Coincident", 1, 3, 0, 3),
    Sketcher.Constraint("Coincident", 3, 3, 2, 3),
    Sketcher.Constraint("Coincident", 5, 3, 4, 3),
    Sketcher.Constraint("Coincident", 7, 3, 6, 3),
    Sketcher.Constraint("Equal", 0, 2),
    Sketcher.Constraint("Equal", 1, 3),
    Sketcher.Constraint("Equal", 2, 4),
    Sketcher.Constraint("Equal", 3, 5),
    Sketcher.Constraint("Equal", 4, 6),
    Sketcher.Constraint("Equal", 5, 7),
    Sketcher.Constraint("Symmetric", 0, 3, 2, 3, -2),
    Sketcher.Constraint("Symmetric", 4, 3, 6, 3, -2),
    Sketcher.Constraint("Vertical", 3, 3, 4, 3),
    Sketcher.Constraint("Diameter", 0, 9.0),
    Sketcher.Constraint("Diameter", 1, 3.5),
    Sketcher.Constraint("DistanceX", 0, 3, -1, 1, 44.0),
    Sketcher.Constraint("DistanceY", 4, 3, -1, 1, 24.0),
    Sketcher.Constraint("DistanceY", -1, 1, 0, 3, 41.5),
])
pad7 = body2.newObject("PartDesign::Pad", "Pad006")
pad7.Profile = sketch8
pad7.Length = 8.8

# Sketch on XY plane
sketch9 = body2.newObject("Sketcher::SketchObject", "Sketch008")
sketch9.AttachmentSupport = (doc.getObject("XY_Plane001"), [""])
sketch9.MapMode = "FlatFace"
sketch9.AttachmentOffset = App.Placement(V(0, 0, 11.8), App.Rotation())
sketch9.addGeometry([
    Part.Circle(V(-44, 41.5, 0), V(0, 0, 1), 2.9),  # 0
    Part.Circle(V(-44, 41.5, 0), V(0, 0, 1), 1.8),  # 1
    Part.Circle(V(44, 41.5, 0), V(0, 0, 1), 2.9),  # 2
    Part.Circle(V(44, 41.5, 0), V(0, 0, 1), 1.8),  # 3
    Part.Circle(V(44, -24, 0), V(0, 0, 1), 2.9),  # 4
    Part.Circle(V(44, -24, 0), V(0, 0, 1), 1.8),  # 5
    Part.Circle(V(-44, -24, 0), V(0, 0, 1), 2.9),  # 6
    Part.Circle(V(-44, -24, 0), V(0, 0, 1), 1.8),  # 7
], False)
sketch9.addConstraint([
    Sketcher.Constraint("Coincident", 1, 3, 0, 3),
    Sketcher.Constraint("Coincident", 3, 3, 2, 3),
    Sketcher.Constraint("Coincident", 5, 3, 4, 3),
    Sketcher.Constraint("Coincident", 7, 3, 6, 3),
    Sketcher.Constraint("Equal", 0, 2),
    Sketcher.Constraint("Equal", 1, 3),
    Sketcher.Constraint("Equal", 2, 4),
    Sketcher.Constraint("Equal", 3, 5),
    Sketcher.Constraint("Equal", 4, 6),
    Sketcher.Constraint("Equal", 5, 7),
    Sketcher.Constraint("Symmetric", 0, 3, 2, 3, -2),
    Sketcher.Constraint("Symmetric", 4, 3, 6, 3, -2),
    Sketcher.Constraint("Vertical", 3, 3, 4, 3),
    Sketcher.Constraint("Diameter", 0, 5.8),
    Sketcher.Constraint("Diameter", 1, 3.5),
    Sketcher.Constraint("DistanceX", 0, 3, -1, 1, 44.0),
    Sketcher.Constraint("DistanceY", 4, 3, -1, 1, 24.0),
    Sketcher.Constraint("DistanceY", -1, 1, 0, 3, 41.5),
])
pad8 = body2.newObject("PartDesign::Pad", "Pad007")
pad8.Profile = sketch9
pad8.Length = 2

doc.recompute()
